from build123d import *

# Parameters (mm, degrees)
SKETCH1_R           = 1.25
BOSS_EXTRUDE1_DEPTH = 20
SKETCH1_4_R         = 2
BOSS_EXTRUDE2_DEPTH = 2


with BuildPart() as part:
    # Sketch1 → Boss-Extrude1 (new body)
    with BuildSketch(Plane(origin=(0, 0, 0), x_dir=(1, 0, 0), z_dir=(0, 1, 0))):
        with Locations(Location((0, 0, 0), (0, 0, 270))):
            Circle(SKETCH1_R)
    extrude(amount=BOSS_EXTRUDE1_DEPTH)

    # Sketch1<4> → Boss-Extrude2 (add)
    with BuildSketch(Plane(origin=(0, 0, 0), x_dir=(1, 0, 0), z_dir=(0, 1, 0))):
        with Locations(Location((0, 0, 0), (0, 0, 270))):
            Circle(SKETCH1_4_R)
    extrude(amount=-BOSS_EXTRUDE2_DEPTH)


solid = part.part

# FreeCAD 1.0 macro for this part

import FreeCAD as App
import Part
import Sketcher

V = App.Vector

doc = App.newDocument("Part")
params = doc.addObject("Spreadsheet::Sheet", "Params")
for row, (alias, value) in enumerate([
    ("sketch1_diameter", "2.5 mm"),
    ("pad1_length", "20 mm"),
    ("sketch2_diameter", "4 mm"),
    ("pad2_length", "2 mm"),
], start=1):
    params.set(f"A{row}", alias)
    params.set(f"B{row}", "=" + value)
    params.setAlias(f"B{row}", alias)

body = doc.addObject("PartDesign::Body", "Body")

# Sketch on XZ plane
sketch1 = doc.addObject("Sketcher::SketchObject", "Sketch")
body.addObject(sketch1)
sketch1.AttachmentSupport = (doc.XZ_Plane, [""])
sketch1.MapMode = "FlatFace"
sketch1.addGeometry(Part.Circle(V(0, 0, 0), V(0, 0, 1), 1.25), False)
sketch1.addConstraint([
    Sketcher.Constraint("Coincident", 0, 3, -1, 1),
    Sketcher.Constraint("Diameter", 0, 2.5),
])
sketch1.setExpression("Constraints[1]", "Params.sketch1_diameter")
pad1 = doc.addObject("PartDesign::Pad", "Pad")
body.addObject(pad1)
pad1.Profile = sketch1
pad1.setExpression("Length", "Params.pad1_length")
pad1.Reversed = True

# Sketch on XZ plane
sketch2 = doc.addObject("Sketcher::SketchObject", "Sketch001")
body.addObject(sketch2)
sketch2.AttachmentSupport = (doc.XZ_Plane, [""])
sketch2.MapMode = "FlatFace"
sketch2.addGeometry(Part.Circle(V(0, 0, 0), V(0, 0, 1), 2), False)
sketch2.addConstraint([
    Sketcher.Constraint("Coincident", 0, 3, -1, 1),
    Sketcher.Constraint("Diameter", 0, 4.0),
])
sketch2.setExpression("Constraints[1]", "Params.sketch2_diameter")
pad2 = doc.addObject("PartDesign::Pad", "Pad001")
body.addObject(pad2)
pad2.Profile = sketch2
pad2.setExpression("Length", "Params.pad2_length")

doc.recompute()
